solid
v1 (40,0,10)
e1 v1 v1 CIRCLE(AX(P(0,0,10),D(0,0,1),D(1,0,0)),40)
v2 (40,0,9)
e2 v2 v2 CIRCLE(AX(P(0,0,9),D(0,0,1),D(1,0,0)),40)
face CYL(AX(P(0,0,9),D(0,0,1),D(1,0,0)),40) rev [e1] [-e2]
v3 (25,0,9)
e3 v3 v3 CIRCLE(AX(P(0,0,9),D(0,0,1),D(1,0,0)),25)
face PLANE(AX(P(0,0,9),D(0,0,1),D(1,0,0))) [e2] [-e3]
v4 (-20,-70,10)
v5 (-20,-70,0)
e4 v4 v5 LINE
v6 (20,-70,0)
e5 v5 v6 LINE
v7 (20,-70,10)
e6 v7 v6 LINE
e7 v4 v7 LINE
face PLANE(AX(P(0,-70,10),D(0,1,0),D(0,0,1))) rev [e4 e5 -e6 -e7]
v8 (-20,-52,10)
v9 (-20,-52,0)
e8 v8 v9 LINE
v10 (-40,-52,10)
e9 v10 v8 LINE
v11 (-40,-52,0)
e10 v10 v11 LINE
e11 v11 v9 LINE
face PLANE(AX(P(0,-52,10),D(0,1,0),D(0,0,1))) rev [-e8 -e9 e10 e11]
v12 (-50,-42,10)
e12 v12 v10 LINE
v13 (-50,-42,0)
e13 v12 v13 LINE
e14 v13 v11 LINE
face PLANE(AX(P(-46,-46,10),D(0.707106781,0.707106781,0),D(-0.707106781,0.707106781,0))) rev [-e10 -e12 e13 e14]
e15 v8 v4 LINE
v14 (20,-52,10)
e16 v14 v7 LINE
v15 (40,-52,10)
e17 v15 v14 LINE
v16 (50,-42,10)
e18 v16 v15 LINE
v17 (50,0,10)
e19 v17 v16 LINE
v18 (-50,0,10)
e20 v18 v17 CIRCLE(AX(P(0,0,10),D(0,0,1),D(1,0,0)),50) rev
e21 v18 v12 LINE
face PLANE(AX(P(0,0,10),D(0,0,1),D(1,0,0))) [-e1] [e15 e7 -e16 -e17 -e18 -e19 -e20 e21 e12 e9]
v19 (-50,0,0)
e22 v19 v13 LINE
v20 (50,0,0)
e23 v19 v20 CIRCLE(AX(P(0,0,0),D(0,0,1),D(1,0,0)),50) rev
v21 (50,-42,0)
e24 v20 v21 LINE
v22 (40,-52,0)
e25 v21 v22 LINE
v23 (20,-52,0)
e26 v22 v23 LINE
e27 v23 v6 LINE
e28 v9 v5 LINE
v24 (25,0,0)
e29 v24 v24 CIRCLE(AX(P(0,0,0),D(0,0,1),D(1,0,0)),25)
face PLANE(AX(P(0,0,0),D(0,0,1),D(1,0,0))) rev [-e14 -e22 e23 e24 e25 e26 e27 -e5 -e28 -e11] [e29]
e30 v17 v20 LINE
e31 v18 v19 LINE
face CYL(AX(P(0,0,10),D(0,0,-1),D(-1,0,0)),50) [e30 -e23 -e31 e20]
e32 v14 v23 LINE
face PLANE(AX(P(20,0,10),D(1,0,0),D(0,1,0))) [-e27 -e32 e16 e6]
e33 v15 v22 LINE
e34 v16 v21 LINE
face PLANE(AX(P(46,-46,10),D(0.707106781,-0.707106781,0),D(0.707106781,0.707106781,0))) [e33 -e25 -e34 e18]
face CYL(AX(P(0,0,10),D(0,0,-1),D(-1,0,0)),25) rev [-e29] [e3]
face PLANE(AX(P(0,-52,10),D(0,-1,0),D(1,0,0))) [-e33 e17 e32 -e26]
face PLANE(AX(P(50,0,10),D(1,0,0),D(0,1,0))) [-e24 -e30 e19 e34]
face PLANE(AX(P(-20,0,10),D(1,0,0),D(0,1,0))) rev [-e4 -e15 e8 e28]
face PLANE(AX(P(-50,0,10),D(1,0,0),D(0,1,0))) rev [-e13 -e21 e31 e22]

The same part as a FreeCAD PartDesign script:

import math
import FreeCAD as App
import Part
import Sketcher

V = App.Vector

doc = App.newDocument("Part")
params = doc.addObject("Spreadsheet::Sheet", "Params")
for row, (alias, value) in enumerate([
    ("sketch1_diameter", "50 mm"),
    ("sketch1_radius", "50 mm"),
    ("sketch1_width", "20 mm"),
    ("sketch1_width2", "40 mm"),
    ("sketch1_height", "42 mm"),
    ("pad1_length", "10 mm"),
    ("sketch2_diameter", "80 mm"),
    ("pocket1_length", "1 mm"),
], start=1):
    params.set(f"A{row}", alias)
    params.set(f"B{row}", "=" + value)
    params.setAlias(f"B{row}", alias)

body = doc.addObject("PartDesign::Body", "Body")

sketch1 = doc.addObject("Sketcher::SketchObject", "Sketch")
body.addObject(sketch1)
sketch1.AttachmentSupport = (doc.XY_Plane, [""])
sketch1.MapMode = "FlatFace"
sketch1.addGeometry(Part.LineSegment(V(-50, 0, 0), V(-50, -42, 0)), False)
sketch1.addGeometry(Part.LineSegment(V(-50, -42, 0), V(-40, -52, 0)), False)
sketch1.addGeometry(Part.LineSegment(V(-40, -52, 0), V(-20, -52, 0)), False)
sketch1.addGeometry(Part.LineSegment(V(-20, -52, 0), V(-20, -70, 0)), False)
sketch1.addGeometry(Part.LineSegment(V(-20, -70, 0), V(20, -70, 0)), False)
sketch1.addGeometry(Part.LineSegment(V(20, -70, 0), V(20, -52, 0)), False)
sketch1.addGeometry(Part.LineSegment(V(20, -52, 0), V(40, -52, 0)), False)
sketch1.addGeometry(Part.LineSegment(V(40, -52, 0), V(50, -42, 0)), False)
sketch1.addGeometry(Part.LineSegment(V(50, -42, 0), V(50, 0, 0)), False)
sketch1.addGeometry(Part.ArcOfCircle(Part.Circle(V(0, 0, 0), V(0, 0, 1), 50), math.radians(0), math.radians(180)), False)
sketch1.addGeometry(Part.Circle(V(0, 0, 0), V(0, 0, 1), 25), False)
sketch1.addConstraint(Sketcher.Constraint("Coincident", 0, 2, 1, 1))
sketch1.addConstraint(Sketcher.Constraint("Coincident", 1, 2, 2, 1))
sketch1.addConstraint(Sketcher.Constraint("Coincident", 2, 2, 3, 1))
sketch1.addConstraint(Sketcher.Constraint("Coincident", 3, 2, 4, 1))
sketch1.addConstraint(Sketcher.Constraint("Coincident", 4, 2, 5, 1))
sketch1.addConstraint(Sketcher.Constraint("Coincident", 5, 2, 6, 1))
sketch1.addConstraint(Sketcher.Constraint("Coincident", 6, 2, 7, 1))
sketch1.addConstraint(Sketcher.Constraint("Coincident", 7, 2, 8, 1))
sketch1.addConstraint(Sketcher.Constraint("Tangent", 8, 2, 9, 1))
sketch1.addConstraint(Sketcher.Constraint("Tangent", 9, 2, 0, 1))
sketch1.addConstraint(Sketcher.Constraint("Vertical", 0))
sketch1.addConstraint(Sketcher.Constraint("Horizontal", 2))
sketch1.addConstraint(Sketcher.Constraint("Vertical", 3))
sketch1.addConstraint(Sketcher.Constraint("Horizontal", 4))
sketch1.addConstraint(Sketcher.Constraint("Vertical", 5))
sketch1.addConstraint(Sketcher.Constraint("Horizontal", 6))
sketch1.addConstraint(Sketcher.Constraint("Vertical", 8))
sketch1.addConstraint(Sketcher.Constraint("Coincident", 9, 3, -1, 1))
sketch1.addConstraint(Sketcher.Constraint("Coincident", 10, 3, -1, 1))
sketch1.addConstraint(Sketcher.Constraint("Symmetric", 2, 2, 5, 2, -2))
sketch1.addConstraint(Sketcher.Constraint("Perpendicular", 1, 7))
sketch1.addConstraint(Sketcher.Constraint("Horizontal", 0, 2, 7, 2))
sketch1.addConstraint(Sketcher.Constraint("Equal", 2, 6))
sketch1.addConstraint(Sketcher.Constraint("Diameter", 10, 50.0))
sketch1.addConstraint(Sketcher.Constraint("Radius", 9, 50.0))
sketch1.addConstraint(Sketcher.Constraint("DistanceX", 2, 1, 2, 2, 20.0))
sketch1.addConstraint(Sketcher.Constraint("DistanceX", 4, 1, 4, 2, 40.0))
sketch1.addConstraint(Sketcher.Constraint("DistanceY", 0, 2, 0, 1, 42.0))
sketch1.addConstraint(Sketcher.Constraint("DistanceY", 3, 2, 3, 1, 18.0))
sketch1.setExpression("Constraints[23]", "Params.sketch1_diameter")
sketch1.setExpression("Constraints[24]", "Params.sketch1_radius")
sketch1.setExpression("Constraints[25]", "Params.sketch1_width")
sketch1.setExpression("Constraints[26]", "Params.sketch1_width2")
sketch1.setExpression("Constraints[27]", "Params.sketch1_height")
pad1 = doc.addObject("PartDesign::Pad", "Pad")
body.addObject(pad1)
pad1.Profile = sketch1
pad1.setExpression("Length", "Params.pad1_length")

sketch2 = doc.addObject("Sketcher::SketchObject", "Sketch001")
body.addObject(sketch2)
sketch2.AttachmentSupport = (doc.XY_Plane, [""])
sketch2.MapMode = "FlatFace"
sketch2.AttachmentOffset = App.Placement(V(0, 0, 10), App.Rotation())
sketch2.addGeometry(Part.Circle(V(0, 0, 0), V(0, 0, 1), 40), False)
sketch2.addConstraint(Sketcher.Constraint("Coincident", 0, 3, -1, 1))
sketch2.addConstraint(Sketcher.Constraint("Diameter", 0, 80.0))
sketch2.setExpression("Constraints[1]", "Params.sketch2_diameter")
pocket1 = doc.addObject("PartDesign::Pocket", "Pocket")
body.addObject(pocket1)
pocket1.Profile = sketch2
pocket1.setExpression("Length", "Params.pocket1_length")

doc.recompute()
